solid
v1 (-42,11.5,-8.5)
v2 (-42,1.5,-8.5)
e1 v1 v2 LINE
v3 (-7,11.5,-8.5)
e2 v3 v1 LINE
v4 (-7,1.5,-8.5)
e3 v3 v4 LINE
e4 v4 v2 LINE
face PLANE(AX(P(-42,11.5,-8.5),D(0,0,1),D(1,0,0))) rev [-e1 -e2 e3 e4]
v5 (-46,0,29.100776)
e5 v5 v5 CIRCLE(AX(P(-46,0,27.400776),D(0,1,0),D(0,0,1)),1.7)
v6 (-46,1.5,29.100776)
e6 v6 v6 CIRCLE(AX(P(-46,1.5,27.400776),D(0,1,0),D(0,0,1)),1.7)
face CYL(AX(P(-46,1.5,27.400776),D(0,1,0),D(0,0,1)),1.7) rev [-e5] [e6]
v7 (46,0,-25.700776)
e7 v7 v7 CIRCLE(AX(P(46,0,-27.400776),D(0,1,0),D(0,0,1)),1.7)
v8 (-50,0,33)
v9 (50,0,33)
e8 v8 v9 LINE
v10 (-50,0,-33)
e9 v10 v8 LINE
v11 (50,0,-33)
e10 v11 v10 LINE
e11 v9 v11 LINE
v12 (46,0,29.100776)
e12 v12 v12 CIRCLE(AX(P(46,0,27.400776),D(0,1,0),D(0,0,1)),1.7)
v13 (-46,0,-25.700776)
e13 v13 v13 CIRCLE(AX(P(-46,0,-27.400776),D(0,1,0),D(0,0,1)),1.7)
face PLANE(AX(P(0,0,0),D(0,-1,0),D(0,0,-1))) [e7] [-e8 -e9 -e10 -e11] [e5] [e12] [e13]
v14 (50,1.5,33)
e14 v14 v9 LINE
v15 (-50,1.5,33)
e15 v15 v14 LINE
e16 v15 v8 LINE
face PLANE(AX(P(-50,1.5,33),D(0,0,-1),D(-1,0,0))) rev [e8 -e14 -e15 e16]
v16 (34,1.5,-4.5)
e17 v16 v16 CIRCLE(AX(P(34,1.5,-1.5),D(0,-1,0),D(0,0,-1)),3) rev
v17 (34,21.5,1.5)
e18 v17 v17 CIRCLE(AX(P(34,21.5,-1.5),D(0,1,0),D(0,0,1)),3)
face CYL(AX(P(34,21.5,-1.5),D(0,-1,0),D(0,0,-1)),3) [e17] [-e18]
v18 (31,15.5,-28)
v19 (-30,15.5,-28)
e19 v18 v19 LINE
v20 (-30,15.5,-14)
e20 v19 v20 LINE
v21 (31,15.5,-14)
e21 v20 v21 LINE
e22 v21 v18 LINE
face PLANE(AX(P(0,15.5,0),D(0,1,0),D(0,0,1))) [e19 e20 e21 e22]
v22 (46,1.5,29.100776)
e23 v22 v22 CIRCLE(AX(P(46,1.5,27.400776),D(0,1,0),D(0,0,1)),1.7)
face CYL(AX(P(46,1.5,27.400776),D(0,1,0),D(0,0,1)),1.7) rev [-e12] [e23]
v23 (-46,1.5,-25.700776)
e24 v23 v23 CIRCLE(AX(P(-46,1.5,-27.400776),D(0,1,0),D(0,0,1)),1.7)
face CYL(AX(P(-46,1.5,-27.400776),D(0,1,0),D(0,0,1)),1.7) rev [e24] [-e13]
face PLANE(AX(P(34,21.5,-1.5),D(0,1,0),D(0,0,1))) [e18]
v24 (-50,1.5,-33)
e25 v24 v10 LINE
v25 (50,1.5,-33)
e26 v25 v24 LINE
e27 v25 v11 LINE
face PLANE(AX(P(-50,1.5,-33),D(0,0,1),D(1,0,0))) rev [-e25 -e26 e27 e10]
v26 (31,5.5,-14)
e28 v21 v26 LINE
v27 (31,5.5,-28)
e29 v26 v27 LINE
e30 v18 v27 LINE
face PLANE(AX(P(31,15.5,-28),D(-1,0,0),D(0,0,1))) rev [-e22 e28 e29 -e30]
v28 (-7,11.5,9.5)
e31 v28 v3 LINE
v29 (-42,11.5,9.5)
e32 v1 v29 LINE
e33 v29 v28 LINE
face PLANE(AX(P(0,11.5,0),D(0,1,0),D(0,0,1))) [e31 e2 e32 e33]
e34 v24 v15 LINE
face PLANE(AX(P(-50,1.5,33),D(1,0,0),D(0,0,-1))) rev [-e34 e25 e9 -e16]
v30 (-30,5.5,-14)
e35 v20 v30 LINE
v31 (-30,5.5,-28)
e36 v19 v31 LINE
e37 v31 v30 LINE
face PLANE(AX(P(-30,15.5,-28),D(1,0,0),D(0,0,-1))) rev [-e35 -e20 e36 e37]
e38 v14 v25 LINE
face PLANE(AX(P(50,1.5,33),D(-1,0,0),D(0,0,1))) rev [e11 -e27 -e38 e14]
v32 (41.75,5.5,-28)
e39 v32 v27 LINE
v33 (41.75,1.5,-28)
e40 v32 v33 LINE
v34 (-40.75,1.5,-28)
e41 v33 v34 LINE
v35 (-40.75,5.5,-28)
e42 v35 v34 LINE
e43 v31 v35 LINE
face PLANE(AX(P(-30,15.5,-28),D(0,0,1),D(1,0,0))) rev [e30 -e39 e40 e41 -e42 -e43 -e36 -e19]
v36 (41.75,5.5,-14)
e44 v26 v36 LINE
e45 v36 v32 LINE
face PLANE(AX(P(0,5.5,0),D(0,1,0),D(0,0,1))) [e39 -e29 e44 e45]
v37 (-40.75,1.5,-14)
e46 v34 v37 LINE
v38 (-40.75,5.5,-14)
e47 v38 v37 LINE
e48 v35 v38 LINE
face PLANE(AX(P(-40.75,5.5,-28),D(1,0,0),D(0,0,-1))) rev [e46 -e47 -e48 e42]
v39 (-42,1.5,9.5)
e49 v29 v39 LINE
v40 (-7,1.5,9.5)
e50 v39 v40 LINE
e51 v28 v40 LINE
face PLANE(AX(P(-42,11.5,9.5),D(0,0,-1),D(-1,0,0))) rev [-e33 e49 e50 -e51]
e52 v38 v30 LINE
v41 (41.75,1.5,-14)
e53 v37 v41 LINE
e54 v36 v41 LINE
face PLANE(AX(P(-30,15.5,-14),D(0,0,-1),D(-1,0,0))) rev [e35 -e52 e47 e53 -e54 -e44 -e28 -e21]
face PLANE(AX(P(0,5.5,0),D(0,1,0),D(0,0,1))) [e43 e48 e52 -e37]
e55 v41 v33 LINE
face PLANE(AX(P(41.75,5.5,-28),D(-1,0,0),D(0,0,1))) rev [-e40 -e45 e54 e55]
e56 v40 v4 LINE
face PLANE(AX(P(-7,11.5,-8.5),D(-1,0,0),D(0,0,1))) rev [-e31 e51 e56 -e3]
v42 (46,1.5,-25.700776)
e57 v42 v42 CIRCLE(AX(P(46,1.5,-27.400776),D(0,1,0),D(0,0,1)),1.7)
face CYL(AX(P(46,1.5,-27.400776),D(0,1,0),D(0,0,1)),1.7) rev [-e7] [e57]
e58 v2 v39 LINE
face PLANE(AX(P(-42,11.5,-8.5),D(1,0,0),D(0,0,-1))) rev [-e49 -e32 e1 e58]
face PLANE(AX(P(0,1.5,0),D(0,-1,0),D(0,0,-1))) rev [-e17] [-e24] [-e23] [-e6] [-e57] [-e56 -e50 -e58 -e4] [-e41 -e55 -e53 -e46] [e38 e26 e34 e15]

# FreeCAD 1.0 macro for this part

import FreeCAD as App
import Part
import Sketcher

V = App.Vector


def add_polygon(sketch, points):
    """Adds a closed chain of lines whose ends are joined by coincident constraints."""
    first, n = sketch.GeometryCount, len(points)
    for a, b in zip(points, points[1:] + points[:1]):
        sketch.addGeometry(Part.LineSegment(App.Vector(*a, 0), App.Vector(*b, 0)), False)
    for i in range(n):
        sketch.addConstraint(Sketcher.Constraint("Coincident", first + i, 2, first + (i + 1) % n, 1))

doc = App.newDocument("Part")
body = doc.addObject("PartDesign::Body", "Body")

# Sketch on XZ plane
sketch1 = body.newObject("Sketcher::SketchObject", "Sketch")
sketch1.AttachmentSupport = (doc.getObject("XZ_Plane"), [""])
sketch1.MapMode = "FlatFace"
add_polygon(sketch1, [(-50, -33), (-50, 33), (50, 33), (50, -33)])  # lines 0-3
sketch1.addConstraint(Sketcher.Constraint("Vertical", 0))
sketch1.addConstraint(Sketcher.Constraint("Horizontal", 1))
sketch1.addConstraint(Sketcher.Constraint("Vertical", 2))
sketch1.addConstraint(Sketcher.Constraint("Horizontal", 3))
sketch1.addConstraint(Sketcher.Constraint("Symmetric", 0, 2, 2, 2, -1, 1))
sketch1.addConstraint(Sketcher.Constraint("DistanceX", 1, 1, 1, 2, 100.0))
sketch1.addConstraint(Sketcher.Constraint("DistanceY", 0, 1, 0, 2, 66.0))
pad1 = body.newObject("PartDesign::Pad", "Pad")
pad1.Profile = sketch1
pad1.Length = 1.5
pad1.Reversed = True

# Sketch on XZ plane
sketch2 = body.newObject("Sketcher::SketchObject", "Sketch001")
sketch2.AttachmentSupport = (doc.getObject("XZ_Plane"), [""])
sketch2.MapMode = "FlatFace"
sketch2.AttachmentOffset = App.Placement(V(0, 0, -1.5), App.Rotation())
add_polygon(sketch2, [(-30, -28), (-30, -14), (31, -14), (31, -28)])  # lines 0-3
sketch2.addConstraint(Sketcher.Constraint("Vertical", 0))
sketch2.addConstraint(Sketcher.Constraint("Horizontal", 1))
sketch2.addConstraint(Sketcher.Constraint("Vertical", 2))
sketch2.addConstraint(Sketcher.Constraint("Horizontal", 3))
sketch2.addConstraint(Sketcher.Constraint("DistanceX", 1, 1, 1, 2, 61.0))
sketch2.addConstraint(Sketcher.Constraint("DistanceY", 0, 1, 0, 2, 14.0))
sketch2.addConstraint(Sketcher.Constraint("DistanceX", 0, 2, -1, 1, 30.0))
sketch2.addConstraint(Sketcher.Constraint("DistanceY", 0, 2, -1, 1, 14.0))
pad2 = body.newObject("PartDesign::Pad", "Pad001")
pad2.Profile = sketch2
pad2.Length = 14
pad2.Reversed = True

# Sketch on XZ plane
sketch3 = body.newObject("Sketcher::SketchObject", "Sketch002")
sketch3.AttachmentSupport = (doc.getObject("XZ_Plane"), [""])
sketch3.MapMode = "FlatFace"
sketch3.AttachmentOffset = App.Placement(V(0, 0, -1.5), App.Rotation())
add_polygon(sketch3, [(-41, -28), (-41, -14), (42, -14), (42, -28)])  # lines 0-3
sketch3.addConstraint(Sketcher.Constraint("Vertical", 0))
sketch3.addConstraint(Sketcher.Constraint("Horizontal", 1))
sketch3.addConstraint(Sketcher.Constraint("Vertical", 2))
sketch3.addConstraint(Sketcher.Constraint("Horizontal", 3))
sketch3.addConstraint(Sketcher.Constraint("DistanceY", 0, 1, 0, 2, 14.0))
sketch3.addConstraint(Sketcher.Constraint("DistanceX", 1, 1, 1, 2, 82.5))
sketch3.addConstraint(Sketcher.Constraint("DistanceY", 0, 2, -1, 1, 14.0))
sketch3.addConstraint(Sketcher.Constraint("DistanceX", 0, 2, -1, 1, 40.75))
pad3 = body.newObject("PartDesign::Pad", "Pad002")
pad3.Profile = sketch3
pad3.Length = 4
pad3.Reversed = True

# Sketch on XZ plane
sketch4 = body.newObject("Sketcher::SketchObject", "Sketch003")
sketch4.AttachmentSupport = (doc.getObject("XZ_Plane"), [""])
sketch4.MapMode = "FlatFace"
sketch4.AttachmentOffset = App.Placement(V(0, 0, -1.5), App.Rotation())
sketch4.addGeometry(Part.Circle(V(34, -1.5, 0), V(0, 0, 1), 3), False)
sketch4.addConstraint(Sketcher.Constraint("Diameter", 0, 6.0))
sketch4.addConstraint(Sketcher.Constraint("DistanceX", -1, 1, 0, 3, 34.0))
sketch4.addConstraint(Sketcher.Constraint("DistanceY", 0, 3, -1, 1, 1.5))
pad4 = body.newObject("PartDesign::Pad", "Pad003")
pad4.Profile = sketch4
pad4.Length = 20
pad4.Reversed = True

# Sketch on XZ plane
sketch5 = body.newObject("Sketcher::SketchObject", "Sketch004")
sketch5.AttachmentSupport = (doc.getObject("XZ_Plane"), [""])
sketch5.MapMode = "FlatFace"
sketch5.AttachmentOffset = App.Placement(V(0, 0, -1.5), App.Rotation())
sketch5.addGeometry(Part.Circle(V(-46, 27.4, 0), V(0, 0, 1), 1.7), False)
sketch5.addGeometry(Part.Circle(V(-46, -27.4, 0), V(0, 0, 1), 1.7), False)
sketch5.addGeometry(Part.Circle(V(46, -27.4, 0), V(0, 0, 1), 1.7), False)
sketch5.addGeometry(Part.Circle(V(46, 27.4, 0), V(0, 0, 1), 1.7), False)
sketch5.addConstraint(Sketcher.Constraint("Equal", 0, 1))
sketch5.addConstraint(Sketcher.Constraint("Equal", 1, 2))
sketch5.addConstraint(Sketcher.Constraint("Equal", 2, 3))
sketch5.addConstraint(Sketcher.Constraint("Symmetric", 0, 3, 2, 3, -1, 1))
sketch5.addConstraint(Sketcher.Constraint("Symmetric", 1, 3, 3, 3, -1, 1))
sketch5.addConstraint(Sketcher.Constraint("Symmetric", 1, 3, 2, 3, -2))
sketch5.addConstraint(Sketcher.Constraint("Diameter", 0, 3.4))
sketch5.addConstraint(Sketcher.Constraint("DistanceX", 0, 3, -1, 1, 46.0))
sketch5.addConstraint(Sketcher.Constraint("DistanceY", -1, 1, 0, 3, 27.400776))
doc.recompute()
hole = body.newObject("PartDesign::Hole", "Hole")
hole.Profile = sketch5
hole.ThreadType = "None"
hole.Diameter = 3.4
hole.DepthType = "ThroughAll"
hole.Reversed = True

# Sketch on XZ plane
sketch6 = body.newObject("Sketcher::SketchObject", "Sketch005")
sketch6.AttachmentSupport = (doc.getObject("XZ_Plane"), [""])
sketch6.MapMode = "FlatFace"
sketch6.AttachmentOffset = App.Placement(V(0, 0, -1.5), App.Rotation())
add_polygon(sketch6, [(-42, -8), (-42, 10), (-7, 10), (-7, -8)])  # lines 0-3
sketch6.addConstraint(Sketcher.Constraint("Vertical", 0))
sketch6.addConstraint(Sketcher.Constraint("Horizontal", 1))
sketch6.addConstraint(Sketcher.Constraint("Vertical", 2))
sketch6.addConstraint(Sketcher.Constraint("Horizontal", 3))
sketch6.addConstraint(Sketcher.Constraint("DistanceX", 1, 1, 1, 2, 35.0))
sketch6.addConstraint(Sketcher.Constraint("DistanceY", 0, 1, 0, 2, 18.0))
sketch6.addConstraint(Sketcher.Constraint("DistanceX", 0, 2, -1, 1, 42.0))
sketch6.addConstraint(Sketcher.Constraint("DistanceY", -1, 1, 0, 2, 9.5))
pad5 = body.newObject("PartDesign::Pad", "Pad004")
pad5.Profile = sketch6
pad5.Length = 10
pad5.Reversed = True

doc.recompute()
